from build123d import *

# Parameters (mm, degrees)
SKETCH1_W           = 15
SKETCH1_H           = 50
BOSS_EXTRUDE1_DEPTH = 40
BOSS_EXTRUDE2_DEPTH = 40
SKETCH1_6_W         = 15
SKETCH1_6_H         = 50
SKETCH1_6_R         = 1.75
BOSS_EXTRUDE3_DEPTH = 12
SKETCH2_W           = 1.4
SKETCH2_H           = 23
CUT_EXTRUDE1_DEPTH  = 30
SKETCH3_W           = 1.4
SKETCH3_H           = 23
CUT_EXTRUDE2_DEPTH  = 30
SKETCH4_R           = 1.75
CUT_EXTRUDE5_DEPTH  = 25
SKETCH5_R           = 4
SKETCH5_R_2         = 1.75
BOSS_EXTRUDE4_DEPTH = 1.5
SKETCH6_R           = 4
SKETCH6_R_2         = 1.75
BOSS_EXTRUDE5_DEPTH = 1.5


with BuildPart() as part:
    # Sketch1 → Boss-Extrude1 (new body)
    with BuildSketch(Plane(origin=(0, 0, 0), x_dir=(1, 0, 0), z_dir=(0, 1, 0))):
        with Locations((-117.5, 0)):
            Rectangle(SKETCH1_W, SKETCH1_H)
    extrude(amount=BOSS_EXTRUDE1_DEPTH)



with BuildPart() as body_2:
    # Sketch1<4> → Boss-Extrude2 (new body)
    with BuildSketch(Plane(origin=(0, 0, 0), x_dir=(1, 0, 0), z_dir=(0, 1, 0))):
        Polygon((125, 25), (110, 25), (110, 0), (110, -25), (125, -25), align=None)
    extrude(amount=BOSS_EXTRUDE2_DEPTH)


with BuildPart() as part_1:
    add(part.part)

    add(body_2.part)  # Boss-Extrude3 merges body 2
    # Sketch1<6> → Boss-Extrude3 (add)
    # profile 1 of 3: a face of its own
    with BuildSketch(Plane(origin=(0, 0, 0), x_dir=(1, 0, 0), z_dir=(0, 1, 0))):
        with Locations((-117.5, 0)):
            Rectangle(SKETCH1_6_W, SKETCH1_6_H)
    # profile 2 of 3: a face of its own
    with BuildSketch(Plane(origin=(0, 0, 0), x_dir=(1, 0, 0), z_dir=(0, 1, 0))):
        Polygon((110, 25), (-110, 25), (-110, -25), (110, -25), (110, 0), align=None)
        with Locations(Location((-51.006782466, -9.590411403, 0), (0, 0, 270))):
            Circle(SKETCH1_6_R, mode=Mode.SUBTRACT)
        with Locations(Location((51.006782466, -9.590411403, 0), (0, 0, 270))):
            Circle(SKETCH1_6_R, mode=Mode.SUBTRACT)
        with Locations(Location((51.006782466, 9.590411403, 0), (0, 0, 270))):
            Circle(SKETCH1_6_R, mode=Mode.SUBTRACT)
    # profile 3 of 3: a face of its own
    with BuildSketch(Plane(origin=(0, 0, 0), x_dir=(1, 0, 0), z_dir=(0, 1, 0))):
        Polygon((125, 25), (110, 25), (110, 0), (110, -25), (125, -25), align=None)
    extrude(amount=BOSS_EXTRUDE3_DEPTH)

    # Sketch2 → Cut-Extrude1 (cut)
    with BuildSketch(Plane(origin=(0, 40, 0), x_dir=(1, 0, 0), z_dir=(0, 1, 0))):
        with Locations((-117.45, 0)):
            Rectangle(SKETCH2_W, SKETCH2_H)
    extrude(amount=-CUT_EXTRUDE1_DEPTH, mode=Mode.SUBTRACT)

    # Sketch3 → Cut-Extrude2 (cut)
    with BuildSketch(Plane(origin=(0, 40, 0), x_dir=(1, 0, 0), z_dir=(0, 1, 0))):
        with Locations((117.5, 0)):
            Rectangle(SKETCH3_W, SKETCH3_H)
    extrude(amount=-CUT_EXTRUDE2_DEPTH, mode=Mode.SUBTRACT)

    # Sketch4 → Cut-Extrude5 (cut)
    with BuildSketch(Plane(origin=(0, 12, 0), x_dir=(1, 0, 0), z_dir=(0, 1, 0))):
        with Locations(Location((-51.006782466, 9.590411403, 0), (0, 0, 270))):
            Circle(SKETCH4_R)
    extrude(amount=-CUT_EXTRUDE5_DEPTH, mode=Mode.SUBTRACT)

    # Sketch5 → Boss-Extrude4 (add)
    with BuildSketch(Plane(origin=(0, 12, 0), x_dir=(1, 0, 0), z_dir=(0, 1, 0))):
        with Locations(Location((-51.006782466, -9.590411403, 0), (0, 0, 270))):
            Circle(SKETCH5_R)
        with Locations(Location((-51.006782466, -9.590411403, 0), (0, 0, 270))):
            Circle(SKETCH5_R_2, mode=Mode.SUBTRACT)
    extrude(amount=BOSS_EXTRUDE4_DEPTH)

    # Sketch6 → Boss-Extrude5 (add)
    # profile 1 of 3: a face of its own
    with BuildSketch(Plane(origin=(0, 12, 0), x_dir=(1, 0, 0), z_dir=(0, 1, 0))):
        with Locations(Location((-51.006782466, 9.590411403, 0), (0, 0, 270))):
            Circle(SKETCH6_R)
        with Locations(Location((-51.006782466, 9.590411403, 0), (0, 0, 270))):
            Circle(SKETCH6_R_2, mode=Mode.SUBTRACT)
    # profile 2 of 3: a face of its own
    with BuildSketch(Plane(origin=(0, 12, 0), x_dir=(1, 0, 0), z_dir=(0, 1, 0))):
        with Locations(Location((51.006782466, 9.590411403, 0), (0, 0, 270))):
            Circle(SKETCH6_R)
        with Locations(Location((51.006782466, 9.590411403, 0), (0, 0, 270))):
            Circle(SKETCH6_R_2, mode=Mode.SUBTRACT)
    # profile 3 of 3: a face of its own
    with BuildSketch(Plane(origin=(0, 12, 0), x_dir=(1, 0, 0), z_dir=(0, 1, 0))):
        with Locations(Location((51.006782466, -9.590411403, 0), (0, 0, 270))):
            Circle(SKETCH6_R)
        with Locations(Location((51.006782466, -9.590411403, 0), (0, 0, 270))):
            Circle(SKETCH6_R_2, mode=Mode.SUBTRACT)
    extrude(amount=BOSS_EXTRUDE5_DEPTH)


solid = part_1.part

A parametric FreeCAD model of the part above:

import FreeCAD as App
import Part
import Sketcher

V = App.Vector

doc = App.newDocument("Part")
body = doc.addObject("PartDesign::Body", "Body")

# Sketch on XZ plane
sketch1 = body.newObject("Sketcher::SketchObject", "Sketch")
sketch1.AttachmentSupport = (doc.getObject("XZ_Plane"), [""])
sketch1.MapMode = "FlatFace"
sketch1.addGeometry([
    Part.LineSegment(V(-125, -25, 0), V(-125, 25, 0)),
    Part.LineSegment(V(-125, 25, 0), V(-110, 25, 0)),
    Part.LineSegment(V(-110, 25, 0), V(-110, -25, 0)),
    Part.LineSegment(V(-110, -25, 0), V(-125, -25, 0)),
], False)
sketch1.addConstraint([
    Sketcher.Constraint("Coincident", 0, 2, 1, 1),
    Sketcher.Constraint("Coincident", 1, 2, 2, 1),
    Sketcher.Constraint("Coincident", 2, 2, 3, 1),
    Sketcher.Constraint("Coincident", 3, 2, 0, 1),
    Sketcher.Constraint("Vertical", 0),
    Sketcher.Constraint("Horizontal", 1),
    Sketcher.Constraint("Vertical", 2),
    Sketcher.Constraint("Horizontal", 3),
    Sketcher.Constraint("DistanceX", 1, 1, 1, 2, 15.0),
    Sketcher.Constraint("DistanceY", 0, 1, 0, 2, 50.0),
    Sketcher.Constraint("DistanceX", 0, 2, -1, 1, 125.0),
    Sketcher.Constraint("DistanceY", -1, 1, 0, 2, 25.0),
])
pad1 = body.newObject("PartDesign::Pad", "Pad")
pad1.Profile = sketch1
pad1.Length = 40
pad1.Reversed = True
body2 = doc.addObject("PartDesign::Body", "Body001")

# Sketch on XZ plane
sketch2 = body2.newObject("Sketcher::SketchObject", "Sketch001")
sketch2.AttachmentSupport = (doc.getObject("XZ_Plane001"), [""])
sketch2.MapMode = "FlatFace"
sketch2.addGeometry([
    Part.LineSegment(V(125, -25, 0), V(110, -25, 0)),
    Part.LineSegment(V(110, -25, 0), V(110, 25, 0)),
    Part.LineSegment(V(110, 25, 0), V(125, 25, 0)),
    Part.LineSegment(V(125, 25, 0), V(125, -25, 0)),
], False)
sketch2.addConstraint([
    Sketcher.Constraint("Coincident", 0, 2, 1, 1),
    Sketcher.Constraint("Coincident", 1, 2, 2, 1),
    Sketcher.Constraint("Coincident", 2, 2, 3, 1),
    Sketcher.Constraint("Coincident", 3, 2, 0, 1),
    Sketcher.Constraint("Horizontal", 0),
    Sketcher.Constraint("Vertical", 1),
    Sketcher.Constraint("Horizontal", 2),
    Sketcher.Constraint("Vertical", 3),
    Sketcher.Constraint("DistanceX", 0, 2, 0, 1, 15.0),
    Sketcher.Constraint("DistanceY", 1, 1, 1, 2, 50.0),
    Sketcher.Constraint("DistanceX", -1, 1, 0, 2, 110.0),
    Sketcher.Constraint("DistanceY", 0, 2, -1, 1, 25.0),
])
pad2 = body2.newObject("PartDesign::Pad", "Pad001")
pad2.Profile = sketch2
pad2.Length = 40
pad2.Reversed = True
body.AllowCompound = True
doc.recompute()

boolean = body.newObject("PartDesign::Boolean", "Boolean")
boolean.Type = "Fuse"
boolean.addObjects([body2])

# Sketch on XZ plane
sketch3 = body.newObject("Sketcher::SketchObject", "Sketch002")
sketch3.AttachmentSupport = (doc.getObject("XZ_Plane"), [""])
sketch3.MapMode = "FlatFace"
sketch3.addGeometry([
    Part.LineSegment(V(-125, -25, 0), V(-125, 25, 0)),  # 0
    Part.LineSegment(V(-125, 25, 0), V(125, 25, 0)),  # 1
    Part.LineSegment(V(125, 25, 0), V(125, -25, 0)),  # 2
    Part.LineSegment(V(125, -25, 0), V(-125, -25, 0)),  # 3
    Part.Circle(V(51.006782, -9.590411, 0), V(0, 0, 1), 1.75),  # 4
    Part.Circle(V(-51.006782, 9.590411, 0), V(0, 0, 1), 1.75),  # 5
    Part.Circle(V(51.006782, 9.590411, 0), V(0, 0, 1), 1.75),  # 6
], False)
sketch3.addConstraint([
    Sketcher.Constraint("Coincident", 0, 2, 1, 1),
    Sketcher.Constraint("Coincident", 1, 2, 2, 1),
    Sketcher.Constraint("Coincident", 2, 2, 3, 1),
    Sketcher.Constraint("Coincident", 3, 2, 0, 1),
    Sketcher.Constraint("Vertical", 0),
    Sketcher.Constraint("Horizontal", 1),
    Sketcher.Constraint("Vertical", 2),
    Sketcher.Constraint("Horizontal", 3),
    Sketcher.Constraint("Equal", 4, 5),
    Sketcher.Constraint("Equal", 5, 6),
    Sketcher.Constraint("Symmetric", 4, 3, 5, 3, -1, 1),
    Sketcher.Constraint("Symmetric", 0, 2, 2, 2, -1, 1),
    Sketcher.Constraint("Symmetric", 5, 3, 6, 3, -2),
    Sketcher.Constraint("Diameter", 4, 3.5),
    Sketcher.Constraint("DistanceX", 1, 1, 1, 2, 250.0),
    Sketcher.Constraint("DistanceY", 0, 1, 0, 2, 50.0),
    Sketcher.Constraint("DistanceY", 4, 3, -1, 1, 9.590411),
    Sketcher.Constraint("DistanceX", -1, 1, 4, 3, 51.006782),
])
pad3 = body.newObject("PartDesign::Pad", "Pad002")
pad3.Profile = sketch3
pad3.Length = 12
pad3.Reversed = True

# Sketch on XZ plane
sketch4 = body.newObject("Sketcher::SketchObject", "Sketch003")
sketch4.AttachmentSupport = (doc.getObject("XZ_Plane"), [""])
sketch4.MapMode = "FlatFace"
sketch4.AttachmentOffset = App.Placement(V(0, 0, -40), App.Rotation())
sketch4.addGeometry([
    Part.LineSegment(V(-118.15, -11.5, 0), V(-118.15, 11.5, 0)),
    Part.LineSegment(V(-118.15, 11.5, 0), V(-116.75, 11.5, 0)),
    Part.LineSegment(V(-116.75, 11.5, 0), V(-116.75, -11.5, 0)),
    Part.LineSegment(V(-116.75, -11.5, 0), V(-118.15, -11.5, 0)),
], False)
sketch4.addConstraint([
    Sketcher.Constraint("Coincident", 0, 2, 1, 1),
    Sketcher.Constraint("Coincident", 1, 2, 2, 1),
    Sketcher.Constraint("Coincident", 2, 2, 3, 1),
    Sketcher.Constraint("Coincident", 3, 2, 0, 1),
    Sketcher.Constraint("Vertical", 0),
    Sketcher.Constraint("Horizontal", 1),
    Sketcher.Constraint("Vertical", 2),
    Sketcher.Constraint("Horizontal", 3),
    Sketcher.Constraint("DistanceY", 0, 1, 0, 2, 23.0),
    Sketcher.Constraint("DistanceX", 1, 1, 1, 2, 1.4),
    Sketcher.Constraint("DistanceY", -1, 1, 0, 2, 11.5),
    Sketcher.Constraint("DistanceX", 0, 2, -1, 1, 118.15),
])
pocket1 = body.newObject("PartDesign::Pocket", "Pocket")
pocket1.Profile = sketch4
pocket1.Length = 30
pocket1.Reversed = True

# Sketch on XZ plane
sketch5 = body.newObject("Sketcher::SketchObject", "Sketch004")
sketch5.AttachmentSupport = (doc.getObject("XZ_Plane"), [""])
sketch5.MapMode = "FlatFace"
sketch5.AttachmentOffset = App.Placement(V(0, 0, -40), App.Rotation())
sketch5.addGeometry([
    Part.LineSegment(V(116.8, -11.5, 0), V(116.8, 11.5, 0)),
    Part.LineSegment(V(116.8, 11.5, 0), V(118.2, 11.5, 0)),
    Part.LineSegment(V(118.2, 11.5, 0), V(118.2, -11.5, 0)),
    Part.LineSegment(V(118.2, -11.5, 0), V(116.8, -11.5, 0)),
], False)
sketch5.addConstraint([
    Sketcher.Constraint("Coincident", 0, 2, 1, 1),
    Sketcher.Constraint("Coincident", 1, 2, 2, 1),
    Sketcher.Constraint("Coincident", 2, 2, 3, 1),
    Sketcher.Constraint("Coincident", 3, 2, 0, 1),
    Sketcher.Constraint("Vertical", 0),
    Sketcher.Constraint("Horizontal", 1),
    Sketcher.Constraint("Vertical", 2),
    Sketcher.Constraint("Horizontal", 3),
    Sketcher.Constraint("DistanceY", 0, 1, 0, 2, 23.0),
    Sketcher.Constraint("DistanceX", 1, 1, 1, 2, 1.4),
    Sketcher.Constraint("DistanceX", -1, 1, 0, 2, 116.8),
    Sketcher.Constraint("DistanceY", -1, 1, 0, 2, 11.5),
])
pocket2 = body.newObject("PartDesign::Pocket", "Pocket001")
pocket2.Profile = sketch5
pocket2.Length = 30
pocket2.Reversed = True

# Sketch on XZ plane
sketch6 = body.newObject("Sketcher::SketchObject", "Sketch005")
sketch6.AttachmentSupport = (doc.getObject("XZ_Plane"), [""])
sketch6.MapMode = "FlatFace"
sketch6.AttachmentOffset = App.Placement(V(0, 0, -12), App.Rotation())
sketch6.addGeometry(Part.Circle(V(-51.006782, -9.590411, 0), V(0, 0, 1), 1.75), False)
sketch6.addConstraint([
    Sketcher.Constraint("Diameter", 0, 3.5),
    Sketcher.Constraint("DistanceY", 0, 3, -1, 1, 9.590411),
    Sketcher.Constraint("DistanceX", 0, 3, -1, 1, 51.006782),
])
pocket3 = body.newObject("PartDesign::Pocket", "Pocket002")
pocket3.Profile = sketch6
pocket3.Length = 25
pocket3.Reversed = True

# Sketch on XZ plane
sketch7 = body.newObject("Sketcher::SketchObject", "Sketch006")
sketch7.AttachmentSupport = (doc.getObject("XZ_Plane"), [""])
sketch7.MapMode = "FlatFace"
sketch7.AttachmentOffset = App.Placement(V(0, 0, -12), App.Rotation())
sketch7.addGeometry([
    Part.Circle(V(-51.006782, 9.590411, 0), V(0, 0, 1), 4),
    Part.Circle(V(-51.006782, 9.590411, 0), V(0, 0, 1), 1.75),
], False)
sketch7.addConstraint([
    Sketcher.Constraint("Coincident", 1, 3, 0, 3),
    Sketcher.Constraint("Diameter", 0, 8.0),
    Sketcher.Constraint("Diameter", 1, 3.5),
    Sketcher.Constraint("DistanceY", -1, 1, 0, 3, 9.590411),
    Sketcher.Constraint("DistanceX", 0, 3, -1, 1, 51.006782),
])
pad4 = body.newObject("PartDesign::Pad", "Pad003")
pad4.Profile = sketch7
pad4.Length = 1.5
pad4.Reversed = True

# Sketch on XZ plane
sketch8 = body.newObject("Sketcher::SketchObject", "Sketch007")
sketch8.AttachmentSupport = (doc.getObject("XZ_Plane"), [""])
sketch8.MapMode = "FlatFace"
sketch8.AttachmentOffset = App.Placement(V(0, 0, -12), App.Rotation())
sketch8.addGeometry([
    Part.Circle(V(-51.006782, -9.590411, 0), V(0, 0, 1), 4),  # 0
    Part.Circle(V(-51.006782, -9.590411, 0), V(0, 0, 1), 1.75),  # 1
    Part.Circle(V(51.006782, -9.590411, 0), V(0, 0, 1), 4),  # 2
    Part.Circle(V(51.006782, -9.590411, 0), V(0, 0, 1), 1.75),  # 3
    Part.Circle(V(51.006782, 9.590411, 0), V(0, 0, 1), 4),  # 4
    Part.Circle(V(51.006782, 9.590411, 0), V(0, 0, 1), 1.75),  # 5
], False)
sketch8.addConstraint([
    Sketcher.Constraint("Coincident", 1, 3, 0, 3),
    Sketcher.Constraint("Coincident", 3, 3, 2, 3),
    Sketcher.Constraint("Coincident", 5, 3, 4, 3),
    Sketcher.Constraint("Equal", 0, 2),
    Sketcher.Constraint("Equal", 1, 3),
    Sketcher.Constraint("Equal", 2, 4),
    Sketcher.Constraint("Equal", 3, 5),
    Sketcher.Constraint("Symmetric", 0, 3, 4, 3, -1, 1),
    Sketcher.Constraint("Symmetric", 0, 3, 2, 3, -2),
    Sketcher.Constraint("Diameter", 0, 8.0),
    Sketcher.Constraint("Diameter", 1, 3.5),
    Sketcher.Constraint("DistanceY", 0, 3, -1, 1, 9.590411),
    Sketcher.Constraint("DistanceX", 0, 3, -1, 1, 51.006782),
])
pad5 = body.newObject("PartDesign::Pad", "Pad004")
pad5.Profile = sketch8
pad5.Length = 1.5
pad5.Reversed = True

doc.recompute()
